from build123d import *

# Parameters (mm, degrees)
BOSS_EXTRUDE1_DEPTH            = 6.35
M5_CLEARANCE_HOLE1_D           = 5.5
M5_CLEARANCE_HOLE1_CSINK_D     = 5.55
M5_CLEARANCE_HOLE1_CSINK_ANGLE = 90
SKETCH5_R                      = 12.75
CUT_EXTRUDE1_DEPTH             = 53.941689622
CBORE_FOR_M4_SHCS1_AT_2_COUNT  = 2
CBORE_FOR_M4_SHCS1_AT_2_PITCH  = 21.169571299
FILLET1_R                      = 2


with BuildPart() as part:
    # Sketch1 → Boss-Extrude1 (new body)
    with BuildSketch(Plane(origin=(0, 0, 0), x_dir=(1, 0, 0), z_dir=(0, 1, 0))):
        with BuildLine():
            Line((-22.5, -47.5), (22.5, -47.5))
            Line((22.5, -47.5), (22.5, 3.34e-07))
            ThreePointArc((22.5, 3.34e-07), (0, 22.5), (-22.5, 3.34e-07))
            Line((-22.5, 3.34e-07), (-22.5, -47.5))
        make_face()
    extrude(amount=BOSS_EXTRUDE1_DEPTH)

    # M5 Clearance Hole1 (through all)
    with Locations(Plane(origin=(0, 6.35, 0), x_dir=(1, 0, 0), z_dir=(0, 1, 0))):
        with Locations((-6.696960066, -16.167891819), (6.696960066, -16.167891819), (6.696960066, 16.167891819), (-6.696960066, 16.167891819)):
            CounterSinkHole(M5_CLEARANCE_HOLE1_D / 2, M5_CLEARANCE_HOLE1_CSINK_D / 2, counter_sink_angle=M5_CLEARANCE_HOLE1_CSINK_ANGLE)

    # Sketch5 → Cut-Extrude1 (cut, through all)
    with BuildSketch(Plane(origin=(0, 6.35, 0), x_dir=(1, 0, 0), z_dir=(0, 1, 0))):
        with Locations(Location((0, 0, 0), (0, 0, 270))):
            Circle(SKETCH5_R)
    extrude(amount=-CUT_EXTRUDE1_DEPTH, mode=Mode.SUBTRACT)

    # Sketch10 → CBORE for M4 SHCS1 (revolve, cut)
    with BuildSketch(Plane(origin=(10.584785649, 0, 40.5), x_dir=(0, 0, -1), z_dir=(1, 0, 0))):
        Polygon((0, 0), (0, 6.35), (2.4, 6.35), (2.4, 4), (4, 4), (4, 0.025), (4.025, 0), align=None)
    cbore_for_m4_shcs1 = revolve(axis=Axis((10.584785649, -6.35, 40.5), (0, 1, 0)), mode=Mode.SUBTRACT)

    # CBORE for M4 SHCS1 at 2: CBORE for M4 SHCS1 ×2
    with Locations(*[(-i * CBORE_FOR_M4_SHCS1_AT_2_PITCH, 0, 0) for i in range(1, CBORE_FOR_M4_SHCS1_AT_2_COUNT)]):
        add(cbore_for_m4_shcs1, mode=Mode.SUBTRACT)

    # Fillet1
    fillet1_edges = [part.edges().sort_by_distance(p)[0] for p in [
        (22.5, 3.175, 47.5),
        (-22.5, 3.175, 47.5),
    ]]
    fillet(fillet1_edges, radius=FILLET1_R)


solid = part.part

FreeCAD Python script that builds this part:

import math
import FreeCAD as App
import Part
import Sketcher
Q = App.Units.Quantity


def edges_at(feature, points):
    """Names of the edges that pass closest to the given points."""
    edges = feature.Shape.Edges
    near = lambda p: min(range(len(edges)), key=lambda i: edges[i].distToShape(Part.Vertex(*p))[0])
    return sorted({f"Edge{near(p) + 1}" for p in points})

doc = App.newDocument("Part")
body = doc.addObject("PartDesign::Body", "Body")

# Sketch on XZ plane
sketch1 = body.newObject("Sketcher::SketchObject", "Sketch")
sketch1.AttachmentSupport = (doc.getObject("XZ_Plane"), [""])
sketch1.MapMode = "FlatFace"
sketch1.addGeometry(Part.LineSegment(App.Vector(-22, 48, 0), App.Vector(22, 48, 0)), False)
sketch1.addGeometry(Part.LineSegment(App.Vector(22, 48, 0), App.Vector(22, 0, 0)), False)
sketch1.addGeometry(Part.ArcOfCircle(Part.Circle(App.Vector(0, 0, 0), App.Vector(0, 0, 1), 22), math.radians(-180), math.radians(0)), False)
sketch1.addGeometry(Part.LineSegment(App.Vector(-22, 0, 0), App.Vector(-22, 48, 0)), False)
sketch1.addConstraint(Sketcher.Constraint("Coincident", 0, 2, 1, 1))
sketch1.addConstraint(Sketcher.Constraint("Tangent", 1, 2, 2, 2))
sketch1.addConstraint(Sketcher.Constraint("Tangent", 2, 1, 3, 1))
sketch1.addConstraint(Sketcher.Constraint("Coincident", 3, 2, 0, 1))
sketch1.addConstraint(Sketcher.Constraint("Horizontal", 0))
sketch1.addConstraint(Sketcher.Constraint("Vertical", 1))
sketch1.addConstraint(Sketcher.Constraint("Vertical", 3))
sketch1.addConstraint(Sketcher.Constraint("Coincident", 2, 3, -1, 1))
sketch1.addConstraint(Sketcher.Constraint("Radius", 2, 22.5))
sketch1.addConstraint(Sketcher.Constraint("DistanceY", 1, 2, 1, 1, 47.5))
pad1 = body.newObject("PartDesign::Pad", "Pad")
pad1.Profile = sketch1
pad1.Length = 6.35
pad1.Reversed = True

# Sketch on XZ plane
sketch2 = body.newObject("Sketcher::SketchObject", "Sketch001")
sketch2.AttachmentSupport = (doc.getObject("XZ_Plane"), [""])
sketch2.MapMode = "FlatFace"
sketch2.AttachmentOffset = App.Placement(App.Vector(0, 0, -6.35), App.Rotation())
sketch2.addGeometry(Part.Circle(App.Vector(-6.7, 16.2, 0), App.Vector(0, 0, 1), 2.8), False)
sketch2.addGeometry(Part.Circle(App.Vector(6.7, 16.2, 0), App.Vector(0, 0, 1), 2.8), False)
sketch2.addGeometry(Part.Circle(App.Vector(6.7, -16.2, 0), App.Vector(0, 0, 1), 2.8), False)
sketch2.addGeometry(Part.Circle(App.Vector(-6.7, -16.2, 0), App.Vector(0, 0, 1), 2.8), False)
sketch2.addConstraint(Sketcher.Constraint("Equal", 0, 1))
sketch2.addConstraint(Sketcher.Constraint("Equal", 1, 2))
sketch2.addConstraint(Sketcher.Constraint("Equal", 2, 3))
sketch2.addConstraint(Sketcher.Constraint("Symmetric", 0, 3, 2, 3, -1, 1))
sketch2.addConstraint(Sketcher.Constraint("Symmetric", 1, 3, 3, 3, -1, 1))
sketch2.addConstraint(Sketcher.Constraint("Symmetric", 0, 3, 1, 3, -2))
sketch2.addConstraint(Sketcher.Constraint("Diameter", 0, 5.5))
sketch2.addConstraint(Sketcher.Constraint("DistanceX", 0, 3, -1, 1, 6.69696))
sketch2.addConstraint(Sketcher.Constraint("DistanceY", -1, 1, 0, 3, 16.167892))
doc.recompute()
hole = body.newObject("PartDesign::Hole", "Hole")
hole.Profile = sketch2
hole.ThreadType = "None"
hole.Diameter = 5.5
hole.DepthType = "ThroughAll"
hole.HoleCutType = "Countersink"
hole.HoleCutDiameter = 5.55
hole.HoleCutCountersinkAngle = 90
hole.Reversed = True

# Sketch on XZ plane
sketch3 = body.newObject("Sketcher::SketchObject", "Sketch002")
sketch3.AttachmentSupport = (doc.getObject("XZ_Plane"), [""])
sketch3.MapMode = "FlatFace"
sketch3.AttachmentOffset = App.Placement(App.Vector(0, 0, -6.35), App.Rotation())
sketch3.addGeometry(Part.Circle(App.Vector(0, 0, 0), App.Vector(0, 0, 1), 13), False)
sketch3.addConstraint(Sketcher.Constraint("Coincident", 0, 3, -1, 1))
sketch3.addConstraint(Sketcher.Constraint("Diameter", 0, 25.5))
pocket1 = body.newObject("PartDesign::Pocket", "Pocket")
pocket1.Profile = sketch3
pocket1.Type = "ThroughAll"
pocket1.Reversed = True

# Sketch on YZ plane
sketch4 = body.newObject("Sketcher::SketchObject", "Sketch003")
sketch4.AttachmentSupport = (doc.getObject("YZ_Plane"), [""])
sketch4.MapMode = "FlatFace"
sketch4.AttachmentOffset = App.Placement(App.Vector(0, 0, 10.584786), App.Rotation())
sketch4.addGeometry(Part.LineSegment(App.Vector(6.35, 40.5, 0), App.Vector(0, 40.5, 0)), False)
sketch4.addGeometry(Part.LineSegment(App.Vector(0, 40.5, 0), App.Vector(0, 36.475, 0)), False)
sketch4.addGeometry(Part.LineSegment(App.Vector(0, 36.475, 0), App.Vector(0.025, 36.5, 0)), False)
sketch4.addGeometry(Part.LineSegment(App.Vector(0.025, 36.5, 0), App.Vector(4, 36.5, 0)), False)
sketch4.addGeometry(Part.LineSegment(App.Vector(4, 36.5, 0), App.Vector(4, 38.1, 0)), False)
sketch4.addGeometry(Part.LineSegment(App.Vector(4, 38.1, 0), App.Vector(6.35, 38.1, 0)), False)
sketch4.addGeometry(Part.LineSegment(App.Vector(6.35, 38.1, 0), App.Vector(6.35, 40.5, 0)), False)
sketch4.addGeometry(Part.LineSegment(App.Vector(0, 40.5, 0), App.Vector(6.35, 40.5, 0)), True)  # axis
sketch4.addConstraint(Sketcher.Constraint("Coincident", 0, 2, 1, 1))
sketch4.addConstraint(Sketcher.Constraint("Coincident", 1, 2, 2, 1))
sketch4.addConstraint(Sketcher.Constraint("Coincident", 2, 2, 3, 1))
sketch4.addConstraint(Sketcher.Constraint("Coincident", 3, 2, 4, 1))
sketch4.addConstraint(Sketcher.Constraint("Coincident", 4, 2, 5, 1))
sketch4.addConstraint(Sketcher.Constraint("Coincident", 5, 2, 6, 1))
sketch4.addConstraint(Sketcher.Constraint("Coincident", 6, 2, 0, 1))
sketch4.addConstraint(Sketcher.Constraint("Horizontal", 0))
sketch4.addConstraint(Sketcher.Constraint("Vertical", 1))
sketch4.addConstraint(Sketcher.Constraint("Horizontal", 3))
sketch4.addConstraint(Sketcher.Constraint("Vertical", 4))
sketch4.addConstraint(Sketcher.Constraint("Horizontal", 5))
sketch4.addConstraint(Sketcher.Constraint("Vertical", 6))
sketch4.addConstraint(Sketcher.Constraint("Horizontal", 7))
sketch4.addConstraint(Sketcher.Constraint("Coincident", 7, 1, 0, 2))
sketch4.addConstraint(Sketcher.Constraint("PointOnObject", 0, 2, -2))
sketch4.addConstraint(Sketcher.Constraint("Vertical", 5, 2, 7, 2))
sketch4.addConstraint(Sketcher.Constraint("Angle", 2, Q("45 deg")))
sketch4.addConstraint(Sketcher.Constraint("DistanceY", 4, 1, 4, 2, 1.6))
sketch4.addConstraint(Sketcher.Constraint("DistanceY", 6, 1, 6, 2, 2.4))
sketch4.addConstraint(Sketcher.Constraint("DistanceX", -1, 1, 3, 2, 4.0))
sketch4.addConstraint(Sketcher.Constraint("DistanceX", 0, 2, 0, 1, 6.35))
sketch4.addConstraint(Sketcher.Constraint("DistanceY", -1, 1, 0, 2, 40.5))
sketch4.addConstraint(Sketcher.Constraint("DistanceX", 3, 1, 3, 2, 3.975))
groove = body.newObject("PartDesign::Groove", "Groove")
groove.Profile = sketch4
groove.ReferenceAxis = (sketch4, ["Axis0"])
groove.Angle = 360
doc.recompute()

linearpattern = body.newObject("PartDesign::LinearPattern", "LinearPattern")
linearpattern.Originals = [groove]
linearpattern.Direction = (doc.getObject("X_Axis"), [""])
linearpattern.Mode = "offset"
linearpattern.Offset = 21.169571
linearpattern.Occurrences = 2
linearpattern.Reversed = True
body.Tip = linearpattern
doc.recompute()

fillet = body.newObject("PartDesign::Fillet", "Fillet")
fillet.Base = (linearpattern, edges_at(linearpattern, [(22.5, 3.175, 47.5), (-22.5, 3.175, 47.5)]))
fillet.Radius = 2

doc.recompute()
